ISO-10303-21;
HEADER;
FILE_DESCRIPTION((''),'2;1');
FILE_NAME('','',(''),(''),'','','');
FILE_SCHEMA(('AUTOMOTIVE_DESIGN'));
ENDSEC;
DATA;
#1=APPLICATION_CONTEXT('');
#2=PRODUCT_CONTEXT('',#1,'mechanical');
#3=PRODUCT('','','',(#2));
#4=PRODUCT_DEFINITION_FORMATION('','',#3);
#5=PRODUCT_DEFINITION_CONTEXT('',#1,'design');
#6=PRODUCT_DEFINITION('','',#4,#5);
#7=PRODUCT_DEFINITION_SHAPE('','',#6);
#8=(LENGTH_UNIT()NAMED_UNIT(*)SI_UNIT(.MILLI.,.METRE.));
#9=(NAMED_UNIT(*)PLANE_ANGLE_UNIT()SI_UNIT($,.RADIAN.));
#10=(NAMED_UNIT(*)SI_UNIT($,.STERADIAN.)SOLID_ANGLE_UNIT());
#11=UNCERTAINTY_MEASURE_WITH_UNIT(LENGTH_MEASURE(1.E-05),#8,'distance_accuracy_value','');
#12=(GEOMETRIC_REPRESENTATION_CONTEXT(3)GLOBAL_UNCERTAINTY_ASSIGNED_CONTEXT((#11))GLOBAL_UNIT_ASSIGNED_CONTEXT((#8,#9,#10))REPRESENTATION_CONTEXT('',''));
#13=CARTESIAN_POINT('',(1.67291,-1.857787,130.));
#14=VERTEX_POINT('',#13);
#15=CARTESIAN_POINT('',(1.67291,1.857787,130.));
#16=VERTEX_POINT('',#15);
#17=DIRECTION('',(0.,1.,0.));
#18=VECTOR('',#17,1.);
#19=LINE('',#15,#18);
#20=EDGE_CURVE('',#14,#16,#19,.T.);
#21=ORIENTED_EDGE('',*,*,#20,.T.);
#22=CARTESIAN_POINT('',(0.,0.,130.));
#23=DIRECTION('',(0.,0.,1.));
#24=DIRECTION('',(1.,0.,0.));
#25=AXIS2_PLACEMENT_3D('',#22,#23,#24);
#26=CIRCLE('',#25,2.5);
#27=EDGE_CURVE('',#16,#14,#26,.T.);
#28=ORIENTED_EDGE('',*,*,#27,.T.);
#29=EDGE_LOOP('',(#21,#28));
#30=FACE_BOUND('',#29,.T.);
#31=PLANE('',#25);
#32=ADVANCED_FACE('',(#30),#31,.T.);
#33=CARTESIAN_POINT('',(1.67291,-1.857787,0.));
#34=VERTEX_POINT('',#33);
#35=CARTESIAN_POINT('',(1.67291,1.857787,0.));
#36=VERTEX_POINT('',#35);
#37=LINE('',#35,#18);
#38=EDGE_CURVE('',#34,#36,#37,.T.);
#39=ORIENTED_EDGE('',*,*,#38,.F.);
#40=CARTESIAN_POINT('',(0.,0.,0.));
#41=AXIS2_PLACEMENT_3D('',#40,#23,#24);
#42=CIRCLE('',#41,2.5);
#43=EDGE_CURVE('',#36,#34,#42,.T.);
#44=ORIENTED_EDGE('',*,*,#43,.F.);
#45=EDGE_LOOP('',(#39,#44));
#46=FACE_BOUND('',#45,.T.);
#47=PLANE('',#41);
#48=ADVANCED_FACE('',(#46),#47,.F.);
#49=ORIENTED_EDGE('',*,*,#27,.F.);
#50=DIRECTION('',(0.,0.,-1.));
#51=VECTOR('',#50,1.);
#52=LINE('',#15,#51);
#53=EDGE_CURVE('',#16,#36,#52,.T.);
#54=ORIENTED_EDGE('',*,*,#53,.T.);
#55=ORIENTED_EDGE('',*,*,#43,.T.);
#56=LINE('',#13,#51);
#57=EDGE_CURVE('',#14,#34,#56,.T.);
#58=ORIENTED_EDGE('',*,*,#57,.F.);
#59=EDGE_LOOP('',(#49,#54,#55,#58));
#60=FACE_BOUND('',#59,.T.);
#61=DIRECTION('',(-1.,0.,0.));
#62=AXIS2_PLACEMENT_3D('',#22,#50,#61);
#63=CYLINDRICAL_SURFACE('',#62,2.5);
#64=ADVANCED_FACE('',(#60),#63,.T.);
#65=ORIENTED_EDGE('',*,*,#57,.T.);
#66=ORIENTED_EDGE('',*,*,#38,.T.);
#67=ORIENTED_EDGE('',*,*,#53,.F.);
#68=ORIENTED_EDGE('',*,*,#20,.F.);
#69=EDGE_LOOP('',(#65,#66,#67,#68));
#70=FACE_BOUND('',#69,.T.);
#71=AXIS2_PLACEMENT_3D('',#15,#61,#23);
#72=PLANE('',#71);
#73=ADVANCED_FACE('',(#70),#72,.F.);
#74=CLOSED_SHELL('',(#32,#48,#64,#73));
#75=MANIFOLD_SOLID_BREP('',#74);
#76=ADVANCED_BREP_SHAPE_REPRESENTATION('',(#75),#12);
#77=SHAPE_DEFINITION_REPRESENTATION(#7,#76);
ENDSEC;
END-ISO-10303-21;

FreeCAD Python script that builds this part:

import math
import FreeCAD as App
import Part
import Sketcher
Q = App.Units.Quantity

doc = App.newDocument("Part")
body = doc.addObject("PartDesign::Body", "Body")

# Sketch on XY plane
sketch1 = doc.addObject("Sketcher::SketchObject", "Sketch")
body.addObject(sketch1)
sketch1.AttachmentSupport = (doc.XY_Plane, [""])
sketch1.MapMode = "FlatFace"
sketch1.addGeometry(Part.Circle(App.Vector(0, 0, 0), App.Vector(0, 0, 1), 2.5), False)
sketch1.addConstraint(Sketcher.Constraint("Coincident", 0, 3, -1, 1))
sketch1.addConstraint(Sketcher.Constraint("Diameter", 0, Q("5 mm")))
pad1 = doc.addObject("PartDesign::Pad", "Pad")
body.addObject(pad1)
pad1.Profile = sketch1
pad1.Length = 130

# Sketch on XY plane
sketch2 = doc.addObject("Sketcher::SketchObject", "Sketch001")
body.addObject(sketch2)
sketch2.AttachmentSupport = (doc.XY_Plane, [""])
sketch2.MapMode = "FlatFace"
sketch2.addGeometry(Part.LineSegment(App.Vector(1.7, -1.9, 0), App.Vector(1.7, 1.9, 0)), False)
sketch2.addGeometry(Part.ArcOfCircle(Part.Circle(App.Vector(0, 0, 0), App.Vector(0, 0, 1), 2.5), math.radians(-48), math.radians(48)), False)
sketch2.addConstraint(Sketcher.Constraint("Coincident", 0, 1, 1, 1))
sketch2.addConstraint(Sketcher.Constraint("Coincident", 1, 2, 0, 2))
sketch2.addConstraint(Sketcher.Constraint("Vertical", 0))
sketch2.addConstraint(Sketcher.Constraint("Coincident", 1, 3, -1, 1))
sketch2.addConstraint(Sketcher.Constraint("Radius", 1, Q("2.5 mm")))
sketch2.addConstraint(Sketcher.Constraint("DistanceY", 0, 1, 0, 2, Q("3.715573 mm")))
pocket1 = doc.addObject("PartDesign::Pocket", "Pocket")
body.addObject(pocket1)
pocket1.Profile = sketch2
pocket1.Type = "ThroughAll"
pocket1.Reversed = True

doc.recompute()
